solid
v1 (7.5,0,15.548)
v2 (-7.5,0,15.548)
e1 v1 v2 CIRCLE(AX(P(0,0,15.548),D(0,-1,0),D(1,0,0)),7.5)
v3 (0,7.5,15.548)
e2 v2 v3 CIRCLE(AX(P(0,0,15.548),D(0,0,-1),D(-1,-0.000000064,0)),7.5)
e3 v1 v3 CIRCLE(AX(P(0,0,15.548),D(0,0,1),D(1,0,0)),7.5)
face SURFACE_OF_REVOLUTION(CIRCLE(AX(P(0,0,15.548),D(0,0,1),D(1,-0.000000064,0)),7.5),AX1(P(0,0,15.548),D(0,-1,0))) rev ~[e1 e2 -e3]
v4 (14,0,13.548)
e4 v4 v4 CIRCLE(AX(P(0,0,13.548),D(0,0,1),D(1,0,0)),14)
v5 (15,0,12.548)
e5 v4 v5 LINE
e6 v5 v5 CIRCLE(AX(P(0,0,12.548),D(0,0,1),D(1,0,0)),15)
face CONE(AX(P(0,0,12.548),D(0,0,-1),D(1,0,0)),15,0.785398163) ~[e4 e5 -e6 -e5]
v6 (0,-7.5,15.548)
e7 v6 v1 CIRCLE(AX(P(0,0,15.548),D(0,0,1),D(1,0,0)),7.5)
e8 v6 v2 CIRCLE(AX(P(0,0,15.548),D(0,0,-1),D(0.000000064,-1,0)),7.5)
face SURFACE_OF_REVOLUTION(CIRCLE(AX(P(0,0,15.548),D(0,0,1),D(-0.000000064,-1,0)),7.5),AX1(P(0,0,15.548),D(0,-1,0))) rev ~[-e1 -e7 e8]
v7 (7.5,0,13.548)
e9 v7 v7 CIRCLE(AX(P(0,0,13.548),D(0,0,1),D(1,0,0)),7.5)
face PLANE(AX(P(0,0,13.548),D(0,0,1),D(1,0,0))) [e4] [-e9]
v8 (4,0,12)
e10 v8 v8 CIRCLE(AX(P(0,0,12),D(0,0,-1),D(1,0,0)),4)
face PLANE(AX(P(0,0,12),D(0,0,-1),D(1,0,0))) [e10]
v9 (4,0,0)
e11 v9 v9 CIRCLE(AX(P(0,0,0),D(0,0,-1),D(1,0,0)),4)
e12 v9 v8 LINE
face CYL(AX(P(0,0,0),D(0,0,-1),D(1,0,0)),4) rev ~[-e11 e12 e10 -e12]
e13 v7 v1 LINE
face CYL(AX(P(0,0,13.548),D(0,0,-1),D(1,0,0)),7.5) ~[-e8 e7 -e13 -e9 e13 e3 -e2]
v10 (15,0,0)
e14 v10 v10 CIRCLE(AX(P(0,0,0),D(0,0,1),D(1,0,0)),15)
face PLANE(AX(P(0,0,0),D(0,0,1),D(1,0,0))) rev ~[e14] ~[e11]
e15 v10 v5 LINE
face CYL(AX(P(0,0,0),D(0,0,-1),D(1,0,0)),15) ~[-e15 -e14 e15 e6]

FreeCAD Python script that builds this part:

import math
import FreeCAD as App
import Part
import Sketcher
Q = App.Units.Quantity


def edges_at(feature, points):
    """Names of the edges that pass closest to the given points."""
    edges = feature.Shape.Edges
    near = lambda p: min(range(len(edges)), key=lambda i: edges[i].distToShape(Part.Vertex(*p))[0])
    return sorted({f"Edge{near(p) + 1}" for p in points})

doc = App.newDocument("Part")
body = doc.addObject("PartDesign::Body", "Body")

sketch1 = body.newObject("Sketcher::SketchObject", "Sketch")
sketch1.AttachmentSupport = (doc.getObject("XY_Plane"), [""])
sketch1.MapMode = "FlatFace"
sketch1.addGeometry(Part.Circle(App.Vector(0, 0, 0), App.Vector(0, 0, 1), 15), False)
sketch1.addConstraint([
    Sketcher.Constraint("Coincident", 0, 3, -1, 1),
    Sketcher.Constraint("Diameter", 0, Q("30 mm")),
])
pad1 = body.newObject("PartDesign::Pad", "Pad")
pad1.Profile = sketch1
pad1.Length = 13.548

sketch2 = body.newObject("Sketcher::SketchObject", "Sketch001")
sketch2.AttachmentSupport = (doc.getObject("XY_Plane"), [""])
sketch2.MapMode = "FlatFace"
sketch2.AttachmentOffset = App.Placement(App.Vector(0, 0, 13.548), App.Rotation())
sketch2.addGeometry(Part.Circle(App.Vector(0, 0, 0), App.Vector(0, 0, 1), 8), False)
sketch2.addConstraint([
    Sketcher.Constraint("Coincident", 0, 3, -1, 1),
    Sketcher.Constraint("Diameter", 0, Q("15 mm")),
])
pad2 = body.newObject("PartDesign::Pad", "Pad001")
pad2.Profile = sketch2
pad2.Length = 2

sketch3 = body.newObject("Sketcher::SketchObject", "Sketch002")
sketch3.AttachmentSupport = (doc.getObject("XY_Plane"), [""])
sketch3.MapMode = "FlatFace"
sketch3.AttachmentOffset = App.Placement(App.Vector(0, 0, 15.548), App.Rotation())
sketch3.addGeometry([
    Part.LineSegment(App.Vector(0, 8, 0), App.Vector(0, -8, 0)),
    Part.ArcOfCircle(Part.Circle(App.Vector(0, 0, 0), App.Vector(0, 0, 1), 7), math.radians(-90), math.radians(0)),
    Part.ArcOfCircle(Part.Circle(App.Vector(0, 0, 0), App.Vector(0, 0, 1), 7), math.radians(0), math.radians(90)),
], False)
sketch3.addConstraint([
    Sketcher.Constraint("Coincident", 0, 2, 1, 1),
    Sketcher.Constraint("Tangent", 1, 2, 2, 1),
    Sketcher.Constraint("Coincident", 2, 2, 0, 1),
    Sketcher.Constraint("Vertical", 0),
    Sketcher.Constraint("Coincident", 1, 3, -1, 1),
    Sketcher.Constraint("Equal", 1, 2),
    Sketcher.Constraint("PointOnObject", 0, 2, -2),
    Sketcher.Constraint("PointOnObject", 1, 2, -1),
    Sketcher.Constraint("Radius", 1, Q("7.5 mm")),
])
revolution = body.newObject("PartDesign::Revolution", "Revolution")
revolution.Profile = sketch3
revolution.ReferenceAxis = (sketch3, ["V_Axis"])
revolution.Angle = 180
revolution.Reversed = True

sketch4 = body.newObject("Sketcher::SketchObject", "Sketch003")
sketch4.AttachmentSupport = (doc.getObject("XY_Plane"), [""])
sketch4.MapMode = "FlatFace"
sketch4.addGeometry(Part.Circle(App.Vector(0, 0, 0), App.Vector(0, 0, 1), 4), False)
sketch4.addConstraint([
    Sketcher.Constraint("Coincident", 0, 3, -1, 1),
    Sketcher.Constraint("Diameter", 0, Q("8 mm")),
])
pocket1 = body.newObject("PartDesign::Pocket", "Pocket")
pocket1.Profile = sketch4
pocket1.Length = 12
pocket1.Reversed = True
doc.recompute()

chamfer = body.newObject("PartDesign::Chamfer", "Chamfer")
chamfer.Base = (pocket1, edges_at(pocket1, [(-15, 0, 13.548)]))
chamfer.Size = 1

doc.recompute()
